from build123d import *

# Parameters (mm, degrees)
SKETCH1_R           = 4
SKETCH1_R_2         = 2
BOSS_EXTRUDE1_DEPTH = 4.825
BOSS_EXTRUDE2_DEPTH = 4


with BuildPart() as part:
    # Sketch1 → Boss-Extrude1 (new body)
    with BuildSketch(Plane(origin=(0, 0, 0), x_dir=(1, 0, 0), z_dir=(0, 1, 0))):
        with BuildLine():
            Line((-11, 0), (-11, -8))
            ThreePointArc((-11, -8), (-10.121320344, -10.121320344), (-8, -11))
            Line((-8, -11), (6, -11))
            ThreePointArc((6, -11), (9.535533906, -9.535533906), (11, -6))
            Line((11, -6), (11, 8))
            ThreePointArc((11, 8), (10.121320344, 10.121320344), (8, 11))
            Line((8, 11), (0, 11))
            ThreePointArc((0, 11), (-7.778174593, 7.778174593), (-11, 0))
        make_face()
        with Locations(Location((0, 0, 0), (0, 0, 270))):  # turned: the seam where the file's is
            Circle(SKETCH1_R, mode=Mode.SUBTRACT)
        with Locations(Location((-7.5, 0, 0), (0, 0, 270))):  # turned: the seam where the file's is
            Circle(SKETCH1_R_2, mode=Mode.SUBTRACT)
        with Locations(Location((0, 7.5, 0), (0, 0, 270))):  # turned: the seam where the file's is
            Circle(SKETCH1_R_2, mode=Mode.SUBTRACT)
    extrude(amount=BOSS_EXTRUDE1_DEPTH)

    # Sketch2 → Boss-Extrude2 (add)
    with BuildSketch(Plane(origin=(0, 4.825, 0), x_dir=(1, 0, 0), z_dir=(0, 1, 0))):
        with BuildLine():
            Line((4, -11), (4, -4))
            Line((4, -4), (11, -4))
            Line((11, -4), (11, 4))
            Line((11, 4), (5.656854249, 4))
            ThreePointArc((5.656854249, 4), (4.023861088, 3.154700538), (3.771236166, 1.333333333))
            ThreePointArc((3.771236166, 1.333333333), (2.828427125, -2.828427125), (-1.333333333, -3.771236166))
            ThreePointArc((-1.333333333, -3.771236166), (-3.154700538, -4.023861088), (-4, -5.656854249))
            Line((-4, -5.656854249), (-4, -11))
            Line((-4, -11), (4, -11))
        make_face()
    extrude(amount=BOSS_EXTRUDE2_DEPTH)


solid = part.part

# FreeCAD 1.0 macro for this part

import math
import FreeCAD as App
import Part
import Sketcher
from FreeCAD import Vector

doc = App.newDocument("Part")
body = doc.addObject("PartDesign::Body", "Body")

# Sketch on XZ plane
sketch1 = body.newObject("Sketcher::SketchObject", "Sketch")
sketch1.AttachmentSupport = (doc.getObject("XZ_Plane"), [""])
sketch1.MapMode = "FlatFace"
sketch1.addGeometry([
    Part.LineSegment(Vector(-11, 0, 0), Vector(-11, 8, 0)),  # 0
    Part.ArcOfCircle(Part.Circle(Vector(-8, 8, 0), Vector(0, 0, 1), 3), math.radians(90), math.radians(180)),  # 1
    Part.LineSegment(Vector(-8, 11, 0), Vector(6, 11, 0)),  # 2
    Part.ArcOfCircle(Part.Circle(Vector(6, 6, 0), Vector(0, 0, 1), 5), math.radians(0), math.radians(90)),  # 3
    Part.LineSegment(Vector(11, 6, 0), Vector(11, -8, 0)),  # 4
    Part.ArcOfCircle(Part.Circle(Vector(8, -8, 0), Vector(0, 0, 1), 3), math.radians(-90), math.radians(0)),  # 5
    Part.LineSegment(Vector(8, -11, 0), Vector(0, -11, 0)),  # 6
    Part.ArcOfCircle(Part.Circle(Vector(0, 0, 0), Vector(0, 0, 1), 11), math.radians(180), math.radians(270)),  # 7
    Part.Circle(Vector(-7.5, 0, 0), Vector(0, 0, 1), 2),  # 8
    Part.Circle(Vector(0, 0, 0), Vector(0, 0, 1), 4),  # 9
    Part.Circle(Vector(0, -7.5, 0), Vector(0, 0, 1), 2),  # 10
], False)
sketch1.addConstraint([
    Sketcher.Constraint("Tangent", 0, 2, 1, 2),
    Sketcher.Constraint("Tangent", 1, 1, 2, 1),
    Sketcher.Constraint("Tangent", 2, 2, 3, 2),
    Sketcher.Constraint("Tangent", 3, 1, 4, 1),
    Sketcher.Constraint("Tangent", 4, 2, 5, 2),
    Sketcher.Constraint("Tangent", 5, 1, 6, 1),
    Sketcher.Constraint("Tangent", 6, 2, 7, 2),
    Sketcher.Constraint("Tangent", 7, 1, 0, 1),
    Sketcher.Constraint("Vertical", 0),
    Sketcher.Constraint("Horizontal", 2),
    Sketcher.Constraint("Vertical", 4),
    Sketcher.Constraint("Horizontal", 6),
    Sketcher.Constraint("Coincident", 7, 3, -1, 1),
    Sketcher.Constraint("Coincident", 9, 3, -1, 1),
    Sketcher.Constraint("Equal", 1, 5),
    Sketcher.Constraint("Equal", 8, 10),
    Sketcher.Constraint("Symmetric", 1, 3, 5, 3, -1, 1),
    Sketcher.Constraint("PointOnObject", 8, 3, -1),
    Sketcher.Constraint("PointOnObject", 10, 3, -2),
    Sketcher.Constraint("Diameter", 8, 4.0),
    Sketcher.Constraint("Diameter", 9, 8.0),
    Sketcher.Constraint("Radius", 1, 3.0),
    Sketcher.Constraint("Radius", 3, 5.0),
    Sketcher.Constraint("Radius", 7, 11.0),
    Sketcher.Constraint("DistanceX", 8, 3, -1, 1, 7.5),
    Sketcher.Constraint("DistanceY", 10, 3, -1, 1, 7.5),
])
pad1 = body.newObject("PartDesign::Pad", "Pad")
pad1.Profile = sketch1
pad1.Length = 4.825
pad1.Reversed = True

# Sketch on XZ plane
sketch2 = body.newObject("Sketcher::SketchObject", "Sketch001")
sketch2.AttachmentSupport = (doc.getObject("XZ_Plane"), [""])
sketch2.MapMode = "FlatFace"
sketch2.AttachmentOffset = App.Placement(Vector(0, 0, -4.825), App.Rotation())
sketch2.addGeometry([
    Part.LineSegment(Vector(4, 11, 0), Vector(4, 4, 0)),  # 0
    Part.LineSegment(Vector(4, 4, 0), Vector(11, 4, 0)),  # 1
    Part.LineSegment(Vector(11, 4, 0), Vector(11, -4, 0)),  # 2
    Part.LineSegment(Vector(11, -4, 0), Vector(5.656854, -4, 0)),  # 3
    Part.ArcOfCircle(Part.Circle(Vector(5.656854, -2, 0), Vector(0, 0, 1), 2), math.radians(160.528779), math.radians(270)),  # 4
    Part.ArcOfCircle(Part.Circle(Vector(0, 0, 0), Vector(0, 0, 1), 4), math.radians(-19.471221), math.radians(109.471221)),  # 5
    Part.ArcOfCircle(Part.Circle(Vector(-2, 5.656854, 0), Vector(0, 0, 1), 2), math.radians(-180), math.radians(-70.528779)),  # 6
    Part.LineSegment(Vector(-4, 5.656854, 0), Vector(-4, 11, 0)),  # 7
    Part.LineSegment(Vector(-4, 11, 0), Vector(4, 11, 0)),  # 8
], False)
sketch2.addConstraint([
    Sketcher.Constraint("Coincident", 0, 2, 1, 1),
    Sketcher.Constraint("Coincident", 1, 2, 2, 1),
    Sketcher.Constraint("Coincident", 2, 2, 3, 1),
    Sketcher.Constraint("Tangent", 3, 2, 4, 2),
    Sketcher.Constraint("Tangent", 4, 1, 5, 1),
    Sketcher.Constraint("Tangent", 5, 2, 6, 2),
    Sketcher.Constraint("Tangent", 6, 1, 7, 1),
    Sketcher.Constraint("Coincident", 7, 2, 8, 1),
    Sketcher.Constraint("Coincident", 8, 2, 0, 1),
    Sketcher.Constraint("Vertical", 0),
    Sketcher.Constraint("Horizontal", 1),
    Sketcher.Constraint("Vertical", 2),
    Sketcher.Constraint("Horizontal", 3),
    Sketcher.Constraint("Vertical", 7),
    Sketcher.Constraint("Horizontal", 8),
    Sketcher.Constraint("Coincident", 5, 3, -1, 1),
    Sketcher.Constraint("Equal", 4, 6),
    Sketcher.Constraint("Equal", 1, 0),
    Sketcher.Constraint("Equal", 8, 2),
    Sketcher.Constraint("Equal", 3, 7),
    Sketcher.Constraint("Radius", 4, 2.0),
    Sketcher.Constraint("Radius", 5, 4.0),
    Sketcher.Constraint("DistanceX", 1, 1, 1, 2, 7.0),
    Sketcher.Constraint("DistanceX", 8, 1, 8, 2, 8.0),
    Sketcher.Constraint("DistanceY", 4, 3, -1, 1, 2.0),
])
pad2 = body.newObject("PartDesign::Pad", "Pad001")
pad2.Profile = sketch2
pad2.Length = 4
pad2.Reversed = True

doc.recompute()
